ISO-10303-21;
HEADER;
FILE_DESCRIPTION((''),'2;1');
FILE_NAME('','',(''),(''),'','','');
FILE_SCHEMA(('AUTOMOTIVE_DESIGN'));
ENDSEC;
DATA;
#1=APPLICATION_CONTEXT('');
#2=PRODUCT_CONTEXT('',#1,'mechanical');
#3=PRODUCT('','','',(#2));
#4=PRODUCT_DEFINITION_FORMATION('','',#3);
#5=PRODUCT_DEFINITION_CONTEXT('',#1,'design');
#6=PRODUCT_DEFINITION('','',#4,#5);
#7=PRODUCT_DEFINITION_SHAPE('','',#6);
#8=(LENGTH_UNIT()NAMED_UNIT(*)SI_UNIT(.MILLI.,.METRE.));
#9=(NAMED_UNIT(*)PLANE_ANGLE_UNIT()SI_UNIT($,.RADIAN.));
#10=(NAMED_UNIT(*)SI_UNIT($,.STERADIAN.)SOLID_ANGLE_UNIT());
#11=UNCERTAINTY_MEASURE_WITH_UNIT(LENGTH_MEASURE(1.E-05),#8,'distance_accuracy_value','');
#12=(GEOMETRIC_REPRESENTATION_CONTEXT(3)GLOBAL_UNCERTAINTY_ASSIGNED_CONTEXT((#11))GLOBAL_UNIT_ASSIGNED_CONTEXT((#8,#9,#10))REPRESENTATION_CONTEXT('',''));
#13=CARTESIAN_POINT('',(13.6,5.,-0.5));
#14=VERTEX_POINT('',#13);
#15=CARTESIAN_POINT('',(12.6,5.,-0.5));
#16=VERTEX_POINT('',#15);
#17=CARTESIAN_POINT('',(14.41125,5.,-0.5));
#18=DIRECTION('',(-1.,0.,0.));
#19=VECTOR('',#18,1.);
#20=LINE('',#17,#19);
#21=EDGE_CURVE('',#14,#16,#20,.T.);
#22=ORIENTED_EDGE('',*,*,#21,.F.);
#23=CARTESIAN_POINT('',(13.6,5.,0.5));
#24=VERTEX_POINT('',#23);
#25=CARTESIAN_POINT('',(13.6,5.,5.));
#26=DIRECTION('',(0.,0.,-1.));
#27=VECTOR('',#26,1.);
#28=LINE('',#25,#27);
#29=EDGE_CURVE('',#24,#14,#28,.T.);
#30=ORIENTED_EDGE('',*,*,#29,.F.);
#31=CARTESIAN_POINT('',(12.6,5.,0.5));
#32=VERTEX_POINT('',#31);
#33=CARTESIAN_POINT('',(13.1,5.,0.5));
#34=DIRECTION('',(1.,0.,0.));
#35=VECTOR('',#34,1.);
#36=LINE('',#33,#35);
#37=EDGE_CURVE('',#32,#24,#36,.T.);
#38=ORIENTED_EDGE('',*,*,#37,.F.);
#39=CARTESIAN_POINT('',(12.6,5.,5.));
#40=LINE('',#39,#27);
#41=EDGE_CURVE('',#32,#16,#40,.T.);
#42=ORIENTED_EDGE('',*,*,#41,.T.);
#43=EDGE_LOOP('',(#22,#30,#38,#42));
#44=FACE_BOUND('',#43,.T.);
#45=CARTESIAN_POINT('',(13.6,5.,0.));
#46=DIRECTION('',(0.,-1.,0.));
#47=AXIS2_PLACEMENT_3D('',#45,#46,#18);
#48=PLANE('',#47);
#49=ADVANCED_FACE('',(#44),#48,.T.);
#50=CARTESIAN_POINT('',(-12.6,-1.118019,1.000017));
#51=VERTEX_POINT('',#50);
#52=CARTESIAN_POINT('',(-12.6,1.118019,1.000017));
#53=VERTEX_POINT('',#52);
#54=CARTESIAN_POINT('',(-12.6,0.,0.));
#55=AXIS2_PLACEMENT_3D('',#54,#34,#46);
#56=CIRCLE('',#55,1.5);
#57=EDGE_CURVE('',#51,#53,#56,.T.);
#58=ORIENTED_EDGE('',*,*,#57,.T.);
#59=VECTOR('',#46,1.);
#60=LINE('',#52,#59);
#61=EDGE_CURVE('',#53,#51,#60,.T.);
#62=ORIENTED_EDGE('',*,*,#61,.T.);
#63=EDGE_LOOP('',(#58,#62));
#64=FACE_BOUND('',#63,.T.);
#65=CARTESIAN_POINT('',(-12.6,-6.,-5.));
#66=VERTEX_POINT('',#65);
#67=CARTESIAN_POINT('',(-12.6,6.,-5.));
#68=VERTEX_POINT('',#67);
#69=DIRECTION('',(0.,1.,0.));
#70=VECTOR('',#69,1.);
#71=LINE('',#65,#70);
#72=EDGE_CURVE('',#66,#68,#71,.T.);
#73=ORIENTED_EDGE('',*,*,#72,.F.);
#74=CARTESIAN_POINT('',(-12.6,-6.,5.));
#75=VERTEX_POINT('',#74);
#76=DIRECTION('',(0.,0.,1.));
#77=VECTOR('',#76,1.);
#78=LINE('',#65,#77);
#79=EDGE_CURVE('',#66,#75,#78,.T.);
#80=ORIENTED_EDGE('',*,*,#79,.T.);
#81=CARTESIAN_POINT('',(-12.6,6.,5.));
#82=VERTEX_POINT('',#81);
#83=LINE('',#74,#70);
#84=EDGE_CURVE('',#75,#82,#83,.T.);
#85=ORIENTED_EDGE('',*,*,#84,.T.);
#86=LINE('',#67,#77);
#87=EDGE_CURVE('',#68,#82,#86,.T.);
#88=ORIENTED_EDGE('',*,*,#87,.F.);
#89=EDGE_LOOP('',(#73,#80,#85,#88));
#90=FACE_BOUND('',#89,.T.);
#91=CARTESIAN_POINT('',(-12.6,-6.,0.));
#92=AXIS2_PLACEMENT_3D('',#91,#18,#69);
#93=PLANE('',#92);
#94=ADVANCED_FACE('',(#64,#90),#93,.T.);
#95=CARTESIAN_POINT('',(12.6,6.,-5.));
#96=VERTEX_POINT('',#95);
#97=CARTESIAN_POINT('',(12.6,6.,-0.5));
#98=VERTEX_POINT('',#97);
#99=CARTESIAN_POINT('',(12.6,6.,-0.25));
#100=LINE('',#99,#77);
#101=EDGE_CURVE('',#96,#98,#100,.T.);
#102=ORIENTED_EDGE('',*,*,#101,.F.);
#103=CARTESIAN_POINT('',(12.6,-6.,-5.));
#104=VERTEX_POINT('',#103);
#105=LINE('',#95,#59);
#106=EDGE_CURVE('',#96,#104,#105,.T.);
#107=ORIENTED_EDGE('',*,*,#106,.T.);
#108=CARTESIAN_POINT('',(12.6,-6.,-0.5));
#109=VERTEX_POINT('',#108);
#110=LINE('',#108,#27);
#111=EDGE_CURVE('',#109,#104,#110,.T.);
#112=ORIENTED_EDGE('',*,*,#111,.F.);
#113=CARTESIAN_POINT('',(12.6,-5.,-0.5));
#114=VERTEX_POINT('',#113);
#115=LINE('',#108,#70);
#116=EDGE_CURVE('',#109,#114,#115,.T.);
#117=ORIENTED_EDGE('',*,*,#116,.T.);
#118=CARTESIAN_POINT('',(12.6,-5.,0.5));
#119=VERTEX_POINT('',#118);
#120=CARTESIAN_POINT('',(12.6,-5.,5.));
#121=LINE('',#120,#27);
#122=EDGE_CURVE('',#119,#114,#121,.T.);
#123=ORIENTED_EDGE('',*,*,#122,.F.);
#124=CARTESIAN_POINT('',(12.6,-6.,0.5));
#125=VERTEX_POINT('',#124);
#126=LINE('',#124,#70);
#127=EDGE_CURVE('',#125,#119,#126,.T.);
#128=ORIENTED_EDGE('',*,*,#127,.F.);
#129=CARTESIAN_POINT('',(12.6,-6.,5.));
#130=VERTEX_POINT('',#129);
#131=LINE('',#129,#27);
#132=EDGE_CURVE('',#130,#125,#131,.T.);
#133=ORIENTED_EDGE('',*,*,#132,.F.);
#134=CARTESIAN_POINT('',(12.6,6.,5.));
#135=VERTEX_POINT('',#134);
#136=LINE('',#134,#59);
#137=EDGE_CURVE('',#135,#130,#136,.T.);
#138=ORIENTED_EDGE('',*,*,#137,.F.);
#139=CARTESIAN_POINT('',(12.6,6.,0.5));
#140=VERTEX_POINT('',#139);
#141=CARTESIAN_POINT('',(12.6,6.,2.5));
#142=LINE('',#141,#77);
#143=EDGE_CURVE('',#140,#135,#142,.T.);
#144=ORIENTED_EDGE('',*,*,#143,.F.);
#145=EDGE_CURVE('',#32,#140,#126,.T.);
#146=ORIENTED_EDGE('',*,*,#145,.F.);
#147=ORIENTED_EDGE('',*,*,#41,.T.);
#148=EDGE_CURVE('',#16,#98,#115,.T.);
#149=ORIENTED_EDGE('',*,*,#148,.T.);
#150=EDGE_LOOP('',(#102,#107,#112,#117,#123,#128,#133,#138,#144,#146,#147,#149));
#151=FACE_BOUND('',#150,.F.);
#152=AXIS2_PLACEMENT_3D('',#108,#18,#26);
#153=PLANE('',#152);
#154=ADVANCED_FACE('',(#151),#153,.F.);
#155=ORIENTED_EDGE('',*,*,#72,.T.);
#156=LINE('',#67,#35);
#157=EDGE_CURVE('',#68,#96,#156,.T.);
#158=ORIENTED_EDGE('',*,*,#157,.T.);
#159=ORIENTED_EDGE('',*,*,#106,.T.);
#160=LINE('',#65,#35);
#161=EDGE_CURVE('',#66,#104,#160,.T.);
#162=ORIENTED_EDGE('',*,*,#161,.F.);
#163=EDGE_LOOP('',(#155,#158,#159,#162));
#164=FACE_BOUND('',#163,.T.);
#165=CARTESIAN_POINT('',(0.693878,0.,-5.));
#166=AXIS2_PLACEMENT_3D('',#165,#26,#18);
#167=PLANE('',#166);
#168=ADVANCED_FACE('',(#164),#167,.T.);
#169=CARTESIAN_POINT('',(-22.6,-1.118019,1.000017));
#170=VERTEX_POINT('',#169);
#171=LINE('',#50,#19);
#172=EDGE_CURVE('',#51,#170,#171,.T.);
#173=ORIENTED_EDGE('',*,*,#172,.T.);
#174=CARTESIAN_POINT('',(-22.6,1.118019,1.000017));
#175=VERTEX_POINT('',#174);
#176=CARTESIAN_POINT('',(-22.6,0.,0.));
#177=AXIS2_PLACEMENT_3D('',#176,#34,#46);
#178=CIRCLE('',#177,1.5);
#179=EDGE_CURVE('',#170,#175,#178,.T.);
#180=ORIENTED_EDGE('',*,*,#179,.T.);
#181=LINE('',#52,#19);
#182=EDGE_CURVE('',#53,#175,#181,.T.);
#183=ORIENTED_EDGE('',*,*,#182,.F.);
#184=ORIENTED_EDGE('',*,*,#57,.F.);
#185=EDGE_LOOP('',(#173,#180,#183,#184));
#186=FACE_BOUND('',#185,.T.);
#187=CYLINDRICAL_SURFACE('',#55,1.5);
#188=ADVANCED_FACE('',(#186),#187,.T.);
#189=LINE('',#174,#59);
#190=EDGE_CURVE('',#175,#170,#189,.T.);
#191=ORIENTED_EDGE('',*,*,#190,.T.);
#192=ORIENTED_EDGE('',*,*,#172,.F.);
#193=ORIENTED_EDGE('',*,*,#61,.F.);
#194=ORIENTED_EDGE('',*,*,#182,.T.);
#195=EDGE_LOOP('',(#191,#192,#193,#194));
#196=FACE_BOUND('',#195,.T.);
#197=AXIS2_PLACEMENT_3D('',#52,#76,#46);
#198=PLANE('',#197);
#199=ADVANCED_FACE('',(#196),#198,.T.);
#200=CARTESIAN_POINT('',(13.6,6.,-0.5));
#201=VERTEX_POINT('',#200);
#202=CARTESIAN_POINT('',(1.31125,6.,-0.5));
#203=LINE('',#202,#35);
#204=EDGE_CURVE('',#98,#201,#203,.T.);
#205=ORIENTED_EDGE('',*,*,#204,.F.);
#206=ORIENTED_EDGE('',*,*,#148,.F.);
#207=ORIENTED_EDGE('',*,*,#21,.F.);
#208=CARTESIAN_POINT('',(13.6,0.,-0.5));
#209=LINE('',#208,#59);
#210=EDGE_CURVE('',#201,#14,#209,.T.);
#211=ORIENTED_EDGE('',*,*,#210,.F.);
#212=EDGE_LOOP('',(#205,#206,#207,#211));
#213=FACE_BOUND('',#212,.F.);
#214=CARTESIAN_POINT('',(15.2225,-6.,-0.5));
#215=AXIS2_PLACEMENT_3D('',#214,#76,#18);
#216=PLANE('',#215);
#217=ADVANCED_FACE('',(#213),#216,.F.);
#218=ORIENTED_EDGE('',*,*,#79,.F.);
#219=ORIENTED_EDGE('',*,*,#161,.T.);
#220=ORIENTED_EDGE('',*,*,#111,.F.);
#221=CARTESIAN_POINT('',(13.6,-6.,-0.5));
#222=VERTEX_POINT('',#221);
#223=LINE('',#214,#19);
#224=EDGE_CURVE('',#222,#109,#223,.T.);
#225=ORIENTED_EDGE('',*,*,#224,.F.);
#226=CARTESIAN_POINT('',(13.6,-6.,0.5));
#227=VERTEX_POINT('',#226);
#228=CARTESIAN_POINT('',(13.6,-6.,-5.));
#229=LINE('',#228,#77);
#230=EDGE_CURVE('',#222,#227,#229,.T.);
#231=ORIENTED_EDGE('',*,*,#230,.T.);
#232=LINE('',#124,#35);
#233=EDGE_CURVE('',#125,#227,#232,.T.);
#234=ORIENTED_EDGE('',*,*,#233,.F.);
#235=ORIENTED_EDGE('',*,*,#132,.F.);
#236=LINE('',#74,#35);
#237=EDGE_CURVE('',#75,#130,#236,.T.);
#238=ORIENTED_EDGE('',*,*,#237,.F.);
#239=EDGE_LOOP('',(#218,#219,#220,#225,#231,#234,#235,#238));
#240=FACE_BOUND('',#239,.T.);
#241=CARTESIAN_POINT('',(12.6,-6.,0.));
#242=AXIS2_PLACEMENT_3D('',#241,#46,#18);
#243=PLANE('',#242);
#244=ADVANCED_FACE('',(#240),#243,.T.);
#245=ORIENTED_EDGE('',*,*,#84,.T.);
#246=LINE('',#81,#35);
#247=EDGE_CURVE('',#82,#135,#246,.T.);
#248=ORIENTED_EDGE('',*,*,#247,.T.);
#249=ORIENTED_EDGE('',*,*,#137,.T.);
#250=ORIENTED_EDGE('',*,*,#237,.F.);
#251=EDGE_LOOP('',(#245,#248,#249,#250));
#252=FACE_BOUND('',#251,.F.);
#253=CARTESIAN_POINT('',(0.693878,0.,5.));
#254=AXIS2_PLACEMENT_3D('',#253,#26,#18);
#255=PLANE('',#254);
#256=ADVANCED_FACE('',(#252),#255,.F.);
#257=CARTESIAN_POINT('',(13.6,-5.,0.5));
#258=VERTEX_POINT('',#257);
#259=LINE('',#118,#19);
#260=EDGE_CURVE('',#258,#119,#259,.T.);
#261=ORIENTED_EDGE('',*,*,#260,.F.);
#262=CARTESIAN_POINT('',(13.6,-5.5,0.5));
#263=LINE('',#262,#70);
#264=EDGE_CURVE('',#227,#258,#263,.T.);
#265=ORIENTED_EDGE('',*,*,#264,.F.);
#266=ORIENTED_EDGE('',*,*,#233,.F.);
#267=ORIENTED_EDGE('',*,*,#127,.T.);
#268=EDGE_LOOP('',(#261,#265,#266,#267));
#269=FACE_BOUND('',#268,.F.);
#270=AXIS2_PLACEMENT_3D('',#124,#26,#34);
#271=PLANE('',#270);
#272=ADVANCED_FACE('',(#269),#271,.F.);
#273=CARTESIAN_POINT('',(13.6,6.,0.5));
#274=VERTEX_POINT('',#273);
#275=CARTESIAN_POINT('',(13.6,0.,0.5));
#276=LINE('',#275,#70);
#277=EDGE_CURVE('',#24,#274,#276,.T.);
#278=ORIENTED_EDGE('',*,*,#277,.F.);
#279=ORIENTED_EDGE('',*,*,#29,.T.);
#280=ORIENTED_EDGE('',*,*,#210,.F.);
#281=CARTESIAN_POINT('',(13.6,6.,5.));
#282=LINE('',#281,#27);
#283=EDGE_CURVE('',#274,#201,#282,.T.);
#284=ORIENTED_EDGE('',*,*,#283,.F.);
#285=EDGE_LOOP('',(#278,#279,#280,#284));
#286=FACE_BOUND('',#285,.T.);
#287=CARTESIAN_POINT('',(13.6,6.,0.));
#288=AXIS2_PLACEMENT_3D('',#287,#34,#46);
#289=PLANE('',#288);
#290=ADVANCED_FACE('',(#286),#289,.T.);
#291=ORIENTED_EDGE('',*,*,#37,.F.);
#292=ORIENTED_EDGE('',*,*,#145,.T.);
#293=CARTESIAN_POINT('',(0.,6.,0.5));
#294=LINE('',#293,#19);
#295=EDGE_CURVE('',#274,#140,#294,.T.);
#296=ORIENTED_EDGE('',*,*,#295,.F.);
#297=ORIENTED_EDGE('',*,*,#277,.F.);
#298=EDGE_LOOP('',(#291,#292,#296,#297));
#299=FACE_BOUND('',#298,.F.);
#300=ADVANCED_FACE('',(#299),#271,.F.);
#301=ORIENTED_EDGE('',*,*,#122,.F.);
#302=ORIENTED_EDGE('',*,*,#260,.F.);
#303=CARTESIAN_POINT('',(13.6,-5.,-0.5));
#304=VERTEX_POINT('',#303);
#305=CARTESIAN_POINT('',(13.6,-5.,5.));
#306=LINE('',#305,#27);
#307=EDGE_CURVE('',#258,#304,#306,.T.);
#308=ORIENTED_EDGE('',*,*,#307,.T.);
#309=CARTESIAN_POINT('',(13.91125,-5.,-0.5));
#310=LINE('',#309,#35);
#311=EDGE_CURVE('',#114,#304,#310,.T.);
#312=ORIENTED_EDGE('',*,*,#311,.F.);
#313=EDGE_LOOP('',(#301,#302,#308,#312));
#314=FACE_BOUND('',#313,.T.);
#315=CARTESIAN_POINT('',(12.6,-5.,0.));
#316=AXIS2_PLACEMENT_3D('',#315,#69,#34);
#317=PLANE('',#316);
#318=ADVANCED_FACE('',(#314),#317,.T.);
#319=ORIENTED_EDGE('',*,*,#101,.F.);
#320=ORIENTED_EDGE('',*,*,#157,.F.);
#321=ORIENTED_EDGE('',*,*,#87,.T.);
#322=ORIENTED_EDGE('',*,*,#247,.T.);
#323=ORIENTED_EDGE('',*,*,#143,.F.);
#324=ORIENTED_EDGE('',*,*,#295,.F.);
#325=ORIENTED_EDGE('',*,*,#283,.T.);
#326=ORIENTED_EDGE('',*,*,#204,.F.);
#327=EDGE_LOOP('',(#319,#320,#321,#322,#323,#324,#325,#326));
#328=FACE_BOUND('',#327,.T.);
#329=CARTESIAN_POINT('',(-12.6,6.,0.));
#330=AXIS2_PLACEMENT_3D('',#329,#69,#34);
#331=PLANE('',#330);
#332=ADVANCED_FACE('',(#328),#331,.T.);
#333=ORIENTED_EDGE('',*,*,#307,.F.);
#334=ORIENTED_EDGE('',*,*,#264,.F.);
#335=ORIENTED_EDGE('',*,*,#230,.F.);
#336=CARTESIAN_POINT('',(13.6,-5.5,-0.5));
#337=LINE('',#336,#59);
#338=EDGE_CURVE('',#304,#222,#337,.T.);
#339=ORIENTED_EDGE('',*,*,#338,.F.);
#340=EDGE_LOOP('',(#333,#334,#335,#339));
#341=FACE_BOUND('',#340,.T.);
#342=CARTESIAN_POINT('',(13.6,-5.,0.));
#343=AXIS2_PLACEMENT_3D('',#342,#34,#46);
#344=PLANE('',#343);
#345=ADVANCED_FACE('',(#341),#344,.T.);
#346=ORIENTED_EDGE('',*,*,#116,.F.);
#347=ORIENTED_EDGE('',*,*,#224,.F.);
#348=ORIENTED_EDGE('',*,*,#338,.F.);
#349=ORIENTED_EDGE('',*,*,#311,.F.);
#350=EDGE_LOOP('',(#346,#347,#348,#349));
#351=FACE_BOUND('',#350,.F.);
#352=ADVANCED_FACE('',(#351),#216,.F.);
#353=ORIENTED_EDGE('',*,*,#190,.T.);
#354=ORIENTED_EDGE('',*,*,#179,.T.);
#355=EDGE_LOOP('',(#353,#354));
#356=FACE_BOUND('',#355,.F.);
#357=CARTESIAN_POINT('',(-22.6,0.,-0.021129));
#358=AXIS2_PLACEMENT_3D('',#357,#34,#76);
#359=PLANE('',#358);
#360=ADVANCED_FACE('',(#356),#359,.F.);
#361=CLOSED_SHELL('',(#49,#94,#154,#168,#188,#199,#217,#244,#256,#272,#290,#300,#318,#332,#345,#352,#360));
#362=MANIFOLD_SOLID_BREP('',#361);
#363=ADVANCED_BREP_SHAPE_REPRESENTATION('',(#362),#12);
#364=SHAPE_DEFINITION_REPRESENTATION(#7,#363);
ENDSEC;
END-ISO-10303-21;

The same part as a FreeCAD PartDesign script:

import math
import FreeCAD as App
import Part
import Sketcher

V = App.Vector
Q = App.Units.Quantity

doc = App.newDocument("Part")
params = doc.addObject("Spreadsheet::Sheet", "Params")
for row, (alias, value) in enumerate([
    ("sketch1_height", "12 mm"),
    ("pad1_length", "10 mm"),
    ("sketch2_radius", "1.5 mm"),
    ("pad2_length", "10 mm"),
    ("sketch3_height", "1 mm"),
    ("sketch3_height2", "10 mm"),
    ("pocket1_length", "24 mm"),
], start=1):
    params.set(f"A{row}", alias)
    params.set(f"B{row}", "=" + value)
    params.setAlias(f"B{row}", alias)

body = doc.addObject("PartDesign::Body", "Body")

# Sketch on XY plane
sketch1 = body.newObject("Sketcher::SketchObject", "Sketch")
sketch1.AttachmentSupport = (doc.getObject("XY_Plane"), [""])
sketch1.MapMode = "FlatFace"
sketch1.addGeometry([
    Part.LineSegment(V(13.6, 6, 0), V(-12.6, 6, 0)),  # 0
    Part.LineSegment(V(-12.6, 6, 0), V(-12.6, -6, 0)),  # 1
    Part.LineSegment(V(-12.6, -6, 0), V(13.6, -6, 0)),  # 2
    Part.LineSegment(V(13.6, -6, 0), V(13.6, -5, 0)),  # 3
    Part.LineSegment(V(13.6, -5, 0), V(12.6, -5, 0)),  # 4
    Part.LineSegment(V(12.6, -5, 0), V(12.6, 5, 0)),  # 5
    Part.LineSegment(V(12.6, 5, 0), V(13.6, 5, 0)),  # 6
    Part.LineSegment(V(13.6, 5, 0), V(13.6, 6, 0)),  # 7
], False)
sketch1.addConstraint([
    Sketcher.Constraint("Coincident", 0, 2, 1, 1),
    Sketcher.Constraint("Coincident", 1, 2, 2, 1),
    Sketcher.Constraint("Coincident", 2, 2, 3, 1),
    Sketcher.Constraint("Coincident", 3, 2, 4, 1),
    Sketcher.Constraint("Coincident", 4, 2, 5, 1),
    Sketcher.Constraint("Coincident", 5, 2, 6, 1),
    Sketcher.Constraint("Coincident", 6, 2, 7, 1),
    Sketcher.Constraint("Coincident", 7, 2, 0, 1),
    Sketcher.Constraint("Horizontal", 0),
    Sketcher.Constraint("Vertical", 1),
    Sketcher.Constraint("Horizontal", 2),
    Sketcher.Constraint("Vertical", 3),
    Sketcher.Constraint("Horizontal", 4),
    Sketcher.Constraint("Vertical", 5),
    Sketcher.Constraint("Horizontal", 6),
    Sketcher.Constraint("Vertical", 7),
    Sketcher.Constraint("Symmetric", 3, 2, 6, 2, -1),
    Sketcher.Constraint("Equal", 6, 3),
    Sketcher.Constraint("Equal", 3, 7),
    Sketcher.Constraint("DistanceX", 0, 2, -1, 1, Q("12.6 mm")),
    Sketcher.Constraint("DistanceX", -1, 1, 2, 2, Q("13.6 mm")),
    Sketcher.Constraint("DistanceX", -1, 1, 4, 2, Q("12.6 mm")),
    Sketcher.Constraint("DistanceY", 1, 2, 1, 1, Q("12 mm")),
])
sketch1.setExpression("Constraints[22]", "Params.sketch1_height")
pad1 = body.newObject("PartDesign::Pad", "Pad")
pad1.Profile = sketch1
pad1.setExpression("Length", "Params.pad1_length")
pad1.Midplane = True

# Sketch on YZ plane
sketch2 = body.newObject("Sketcher::SketchObject", "Sketch001")
sketch2.AttachmentSupport = (doc.getObject("YZ_Plane"), [""])
sketch2.MapMode = "FlatFace"
sketch2.AttachmentOffset = App.Placement(V(0, 0, -12.6), App.Rotation())
sketch2.addGeometry([
    Part.LineSegment(V(-1.1, 1, 0), V(1.1, 1, 0)),
    Part.ArcOfCircle(Part.Circle(V(0, 0, 0), V(0, 0, 1), 1.5), math.radians(138), math.radians(402)),
], False)
sketch2.addConstraint([
    Sketcher.Constraint("Coincident", 0, 1, 1, 1),
    Sketcher.Constraint("Coincident", 1, 2, 0, 2),
    Sketcher.Constraint("Horizontal", 0),
    Sketcher.Constraint("Coincident", 1, 3, -1, 1),
    Sketcher.Constraint("Radius", 1, Q("1.5 mm")),
    Sketcher.Constraint("DistanceY", -1, 1, 0, 1, Q("1 mm")),
])
sketch2.setExpression("Constraints[4]", "Params.sketch2_radius")
pad2 = body.newObject("PartDesign::Pad", "Pad001")
pad2.Profile = sketch2
pad2.setExpression("Length", "Params.pad2_length")
pad2.Reversed = True

# Sketch on XZ plane
sketch3 = body.newObject("Sketcher::SketchObject", "Sketch002")
sketch3.AttachmentSupport = (doc.getObject("XZ_Plane"), [""])
sketch3.MapMode = "FlatFace"
sketch3.AttachmentOffset = App.Placement(V(0, 0, 6), App.Rotation())
sketch3.addGeometry([
    Part.LineSegment(V(17.5, 5, 0), V(12.6, 5, 0)),  # 0
    Part.LineSegment(V(12.6, 5, 0), V(12.6, 0.5, 0)),  # 1
    Part.LineSegment(V(12.6, 0.5, 0), V(15.2, 0.5, 0)),  # 2
    Part.LineSegment(V(15.2, 0.5, 0), V(15.2, -0.5, 0)),  # 3
    Part.LineSegment(V(15.2, -0.5, 0), V(12.6, -0.5, 0)),  # 4
    Part.LineSegment(V(12.6, -0.5, 0), V(12.6, -5, 0)),  # 5
    Part.LineSegment(V(12.6, -5, 0), V(17.5, -5, 0)),  # 6
    Part.LineSegment(V(17.5, -5, 0), V(17.5, 5, 0)),  # 7
], False)
sketch3.addConstraint([
    Sketcher.Constraint("Coincident", 0, 2, 1, 1),
    Sketcher.Constraint("Coincident", 1, 2, 2, 1),
    Sketcher.Constraint("Coincident", 2, 2, 3, 1),
    Sketcher.Constraint("Coincident", 3, 2, 4, 1),
    Sketcher.Constraint("Coincident", 4, 2, 5, 1),
    Sketcher.Constraint("Coincident", 5, 2, 6, 1),
    Sketcher.Constraint("Coincident", 6, 2, 7, 1),
    Sketcher.Constraint("Coincident", 7, 2, 0, 1),
    Sketcher.Constraint("Horizontal", 0),
    Sketcher.Constraint("Vertical", 1),
    Sketcher.Constraint("Horizontal", 2),
    Sketcher.Constraint("Vertical", 3),
    Sketcher.Constraint("Horizontal", 4),
    Sketcher.Constraint("Vertical", 5),
    Sketcher.Constraint("Horizontal", 6),
    Sketcher.Constraint("Vertical", 7),
    Sketcher.Constraint("Symmetric", 1, 2, 4, 2, -1),
    Sketcher.Constraint("Equal", 1, 5),
    Sketcher.Constraint("DistanceY", 3, 2, 3, 1, Q("1 mm")),
    Sketcher.Constraint("DistanceY", 7, 1, 7, 2, Q("10 mm")),
    Sketcher.Constraint("DistanceX", -1, 1, 0, 2, Q("12.6 mm")),
    Sketcher.Constraint("DistanceX", 0, 2, 0, 1, Q("4.8728 mm")),
    Sketcher.Constraint("DistanceX", 2, 1, 2, 2, Q("2.6225 mm")),
])
sketch3.setExpression("Constraints[18]", "Params.sketch3_height")
sketch3.setExpression("Constraints[19]", "Params.sketch3_height2")
pocket1 = body.newObject("PartDesign::Pocket", "Pocket")
pocket1.Profile = sketch3
pocket1.setExpression("Length", "Params.pocket1_length")

doc.recompute()
